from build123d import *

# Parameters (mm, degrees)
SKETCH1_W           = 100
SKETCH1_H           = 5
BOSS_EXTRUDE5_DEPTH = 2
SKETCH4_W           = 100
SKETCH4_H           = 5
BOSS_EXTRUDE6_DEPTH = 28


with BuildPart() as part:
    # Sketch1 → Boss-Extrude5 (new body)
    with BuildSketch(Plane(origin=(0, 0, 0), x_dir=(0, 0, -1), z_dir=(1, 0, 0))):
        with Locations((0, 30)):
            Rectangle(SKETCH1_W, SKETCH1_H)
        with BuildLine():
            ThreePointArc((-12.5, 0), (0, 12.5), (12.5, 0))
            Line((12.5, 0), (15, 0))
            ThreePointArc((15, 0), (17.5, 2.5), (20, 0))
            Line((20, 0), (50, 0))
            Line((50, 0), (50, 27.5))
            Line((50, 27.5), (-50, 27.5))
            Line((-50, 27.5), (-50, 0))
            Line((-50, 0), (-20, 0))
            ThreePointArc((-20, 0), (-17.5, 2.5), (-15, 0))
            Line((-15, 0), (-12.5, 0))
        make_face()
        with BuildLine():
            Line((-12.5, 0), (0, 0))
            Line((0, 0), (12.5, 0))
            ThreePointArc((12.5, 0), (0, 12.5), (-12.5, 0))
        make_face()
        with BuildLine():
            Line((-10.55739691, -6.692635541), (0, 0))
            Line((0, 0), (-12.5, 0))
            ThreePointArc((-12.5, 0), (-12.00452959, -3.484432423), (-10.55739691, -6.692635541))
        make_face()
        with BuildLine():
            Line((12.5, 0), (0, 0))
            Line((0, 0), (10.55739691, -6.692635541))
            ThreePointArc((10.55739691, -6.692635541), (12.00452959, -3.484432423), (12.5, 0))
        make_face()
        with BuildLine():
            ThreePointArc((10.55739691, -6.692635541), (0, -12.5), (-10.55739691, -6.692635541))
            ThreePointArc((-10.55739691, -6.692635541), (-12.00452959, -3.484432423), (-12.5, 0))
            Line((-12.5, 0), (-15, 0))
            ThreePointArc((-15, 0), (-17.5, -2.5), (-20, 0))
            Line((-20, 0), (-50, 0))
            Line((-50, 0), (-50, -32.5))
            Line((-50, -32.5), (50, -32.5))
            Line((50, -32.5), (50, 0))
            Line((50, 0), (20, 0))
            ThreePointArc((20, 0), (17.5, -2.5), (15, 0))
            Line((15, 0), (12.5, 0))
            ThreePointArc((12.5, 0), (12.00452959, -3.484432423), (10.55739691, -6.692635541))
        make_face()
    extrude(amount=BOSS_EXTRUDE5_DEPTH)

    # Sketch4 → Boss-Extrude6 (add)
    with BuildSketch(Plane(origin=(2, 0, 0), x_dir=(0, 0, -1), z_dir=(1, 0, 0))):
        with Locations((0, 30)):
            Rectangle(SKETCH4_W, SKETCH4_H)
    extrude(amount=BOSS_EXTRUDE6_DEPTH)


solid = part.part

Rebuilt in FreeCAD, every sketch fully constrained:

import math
import FreeCAD as App
import Part
import Sketcher
Q = App.Units.Quantity


def add_polygon(sketch, points):
    """Adds a closed chain of lines whose ends are joined by coincident constraints."""
    first, n = sketch.GeometryCount, len(points)
    for a, b in zip(points, points[1:] + points[:1]):
        sketch.addGeometry(Part.LineSegment(App.Vector(*a, 0), App.Vector(*b, 0)), False)
    for i in range(n):
        sketch.addConstraint(Sketcher.Constraint("Coincident", first + i, 2, first + (i + 1) % n, 1))

doc = App.newDocument("Part")
body = doc.addObject("PartDesign::Body", "Body")

sketch1 = body.newObject("Sketcher::SketchObject", "Sketch")
sketch1.AttachmentSupport = (doc.getObject("YZ_Plane"), [""])
sketch1.MapMode = "FlatFace"
add_polygon(sketch1, [(32.5, 50), (-32.5, 50), (-32.5, -50), (32.5, -50)])
sketch1.addGeometry(Part.Circle(App.Vector(0, 17.5, 0), App.Vector(0, 0, 1), 2.5), False)
sketch1.addGeometry(Part.LineSegment(App.Vector(-6.7, 10.6, 0), App.Vector(0, 0, 0)), False)
sketch1.addGeometry(Part.LineSegment(App.Vector(0, 0, 0), App.Vector(-6.7, -10.6, 0)), False)
sketch1.addGeometry(Part.ArcOfCircle(Part.Circle(App.Vector(0, 0, 0), App.Vector(0, 0, 1), 12.5), math.radians(122), math.radians(238)), False)
sketch1.addGeometry(Part.Circle(App.Vector(0, -17.5, 0), App.Vector(0, 0, 1), 2.5), False)
sketch1.addConstraint(Sketcher.Constraint("Coincident", 5, 2, 6, 1))
sketch1.addConstraint(Sketcher.Constraint("Coincident", 6, 2, 7, 2))
sketch1.addConstraint(Sketcher.Constraint("Coincident", 7, 1, 5, 1))
sketch1.addConstraint(Sketcher.Constraint("Horizontal", 0))
sketch1.addConstraint(Sketcher.Constraint("Vertical", 1))
sketch1.addConstraint(Sketcher.Constraint("Horizontal", 2))
sketch1.addConstraint(Sketcher.Constraint("Vertical", 3))
sketch1.addConstraint(Sketcher.Constraint("Coincident", 7, 3, -1, 1))
sketch1.addConstraint(Sketcher.Constraint("Coincident", 5, 2, -1, 1))
sketch1.addConstraint(Sketcher.Constraint("Equal", 4, 8))
sketch1.addConstraint(Sketcher.Constraint("Symmetric", 4, 3, 8, 3, -1, 1))
sketch1.addConstraint(Sketcher.Constraint("Symmetric", 0, 2, 2, 2, -1, 1))
sketch1.addConstraint(Sketcher.Constraint("PointOnObject", 4, 3, -2))
sketch1.addConstraint(Sketcher.Constraint("Vertical", 6, 2, 7, 1))
sketch1.addConstraint(Sketcher.Constraint("Diameter", 4, Q("5 mm")))
sketch1.addConstraint(Sketcher.Constraint("Radius", 7, Q("12.5 mm")))
sketch1.addConstraint(Sketcher.Constraint("DistanceX", 0, 2, 0, 1, Q("65 mm")))
sketch1.addConstraint(Sketcher.Constraint("DistanceY", 1, 2, 1, 1, Q("100 mm")))
sketch1.addConstraint(Sketcher.Constraint("DistanceY", 8, 3, 4, 3, Q("35 mm")))
sketch1.addConstraint(Sketcher.Constraint("DistanceX", 6, 2, -1, 1, Q("6.692636 mm")))
pad1 = body.newObject("PartDesign::Pad", "Pad")
pad1.Profile = sketch1
pad1.Length = 2

sketch2 = body.newObject("Sketcher::SketchObject", "Sketch001")
sketch2.AttachmentSupport = (doc.getObject("YZ_Plane"), [""])
sketch2.MapMode = "FlatFace"
sketch2.AttachmentOffset = App.Placement(App.Vector(0, 0, 2), App.Rotation())
add_polygon(sketch2, [(32, 50), (28, 50), (28, -50), (32, -50)])
sketch2.addConstraint(Sketcher.Constraint("Horizontal", 0))
sketch2.addConstraint(Sketcher.Constraint("Vertical", 1))
sketch2.addConstraint(Sketcher.Constraint("Horizontal", 2))
sketch2.addConstraint(Sketcher.Constraint("Vertical", 3))
sketch2.addConstraint(Sketcher.Constraint("DistanceX", 0, 2, 0, 1, Q("5 mm")))
sketch2.addConstraint(Sketcher.Constraint("DistanceY", 1, 2, 1, 1, Q("100 mm")))
sketch2.addConstraint(Sketcher.Constraint("DistanceY", -1, 1, 0, 2, Q("50 mm")))
sketch2.addConstraint(Sketcher.Constraint("DistanceX", -1, 1, 0, 2, Q("27.5 mm")))
pad2 = body.newObject("PartDesign::Pad", "Pad001")
pad2.Profile = sketch2
pad2.Length = 28

doc.recompute()
